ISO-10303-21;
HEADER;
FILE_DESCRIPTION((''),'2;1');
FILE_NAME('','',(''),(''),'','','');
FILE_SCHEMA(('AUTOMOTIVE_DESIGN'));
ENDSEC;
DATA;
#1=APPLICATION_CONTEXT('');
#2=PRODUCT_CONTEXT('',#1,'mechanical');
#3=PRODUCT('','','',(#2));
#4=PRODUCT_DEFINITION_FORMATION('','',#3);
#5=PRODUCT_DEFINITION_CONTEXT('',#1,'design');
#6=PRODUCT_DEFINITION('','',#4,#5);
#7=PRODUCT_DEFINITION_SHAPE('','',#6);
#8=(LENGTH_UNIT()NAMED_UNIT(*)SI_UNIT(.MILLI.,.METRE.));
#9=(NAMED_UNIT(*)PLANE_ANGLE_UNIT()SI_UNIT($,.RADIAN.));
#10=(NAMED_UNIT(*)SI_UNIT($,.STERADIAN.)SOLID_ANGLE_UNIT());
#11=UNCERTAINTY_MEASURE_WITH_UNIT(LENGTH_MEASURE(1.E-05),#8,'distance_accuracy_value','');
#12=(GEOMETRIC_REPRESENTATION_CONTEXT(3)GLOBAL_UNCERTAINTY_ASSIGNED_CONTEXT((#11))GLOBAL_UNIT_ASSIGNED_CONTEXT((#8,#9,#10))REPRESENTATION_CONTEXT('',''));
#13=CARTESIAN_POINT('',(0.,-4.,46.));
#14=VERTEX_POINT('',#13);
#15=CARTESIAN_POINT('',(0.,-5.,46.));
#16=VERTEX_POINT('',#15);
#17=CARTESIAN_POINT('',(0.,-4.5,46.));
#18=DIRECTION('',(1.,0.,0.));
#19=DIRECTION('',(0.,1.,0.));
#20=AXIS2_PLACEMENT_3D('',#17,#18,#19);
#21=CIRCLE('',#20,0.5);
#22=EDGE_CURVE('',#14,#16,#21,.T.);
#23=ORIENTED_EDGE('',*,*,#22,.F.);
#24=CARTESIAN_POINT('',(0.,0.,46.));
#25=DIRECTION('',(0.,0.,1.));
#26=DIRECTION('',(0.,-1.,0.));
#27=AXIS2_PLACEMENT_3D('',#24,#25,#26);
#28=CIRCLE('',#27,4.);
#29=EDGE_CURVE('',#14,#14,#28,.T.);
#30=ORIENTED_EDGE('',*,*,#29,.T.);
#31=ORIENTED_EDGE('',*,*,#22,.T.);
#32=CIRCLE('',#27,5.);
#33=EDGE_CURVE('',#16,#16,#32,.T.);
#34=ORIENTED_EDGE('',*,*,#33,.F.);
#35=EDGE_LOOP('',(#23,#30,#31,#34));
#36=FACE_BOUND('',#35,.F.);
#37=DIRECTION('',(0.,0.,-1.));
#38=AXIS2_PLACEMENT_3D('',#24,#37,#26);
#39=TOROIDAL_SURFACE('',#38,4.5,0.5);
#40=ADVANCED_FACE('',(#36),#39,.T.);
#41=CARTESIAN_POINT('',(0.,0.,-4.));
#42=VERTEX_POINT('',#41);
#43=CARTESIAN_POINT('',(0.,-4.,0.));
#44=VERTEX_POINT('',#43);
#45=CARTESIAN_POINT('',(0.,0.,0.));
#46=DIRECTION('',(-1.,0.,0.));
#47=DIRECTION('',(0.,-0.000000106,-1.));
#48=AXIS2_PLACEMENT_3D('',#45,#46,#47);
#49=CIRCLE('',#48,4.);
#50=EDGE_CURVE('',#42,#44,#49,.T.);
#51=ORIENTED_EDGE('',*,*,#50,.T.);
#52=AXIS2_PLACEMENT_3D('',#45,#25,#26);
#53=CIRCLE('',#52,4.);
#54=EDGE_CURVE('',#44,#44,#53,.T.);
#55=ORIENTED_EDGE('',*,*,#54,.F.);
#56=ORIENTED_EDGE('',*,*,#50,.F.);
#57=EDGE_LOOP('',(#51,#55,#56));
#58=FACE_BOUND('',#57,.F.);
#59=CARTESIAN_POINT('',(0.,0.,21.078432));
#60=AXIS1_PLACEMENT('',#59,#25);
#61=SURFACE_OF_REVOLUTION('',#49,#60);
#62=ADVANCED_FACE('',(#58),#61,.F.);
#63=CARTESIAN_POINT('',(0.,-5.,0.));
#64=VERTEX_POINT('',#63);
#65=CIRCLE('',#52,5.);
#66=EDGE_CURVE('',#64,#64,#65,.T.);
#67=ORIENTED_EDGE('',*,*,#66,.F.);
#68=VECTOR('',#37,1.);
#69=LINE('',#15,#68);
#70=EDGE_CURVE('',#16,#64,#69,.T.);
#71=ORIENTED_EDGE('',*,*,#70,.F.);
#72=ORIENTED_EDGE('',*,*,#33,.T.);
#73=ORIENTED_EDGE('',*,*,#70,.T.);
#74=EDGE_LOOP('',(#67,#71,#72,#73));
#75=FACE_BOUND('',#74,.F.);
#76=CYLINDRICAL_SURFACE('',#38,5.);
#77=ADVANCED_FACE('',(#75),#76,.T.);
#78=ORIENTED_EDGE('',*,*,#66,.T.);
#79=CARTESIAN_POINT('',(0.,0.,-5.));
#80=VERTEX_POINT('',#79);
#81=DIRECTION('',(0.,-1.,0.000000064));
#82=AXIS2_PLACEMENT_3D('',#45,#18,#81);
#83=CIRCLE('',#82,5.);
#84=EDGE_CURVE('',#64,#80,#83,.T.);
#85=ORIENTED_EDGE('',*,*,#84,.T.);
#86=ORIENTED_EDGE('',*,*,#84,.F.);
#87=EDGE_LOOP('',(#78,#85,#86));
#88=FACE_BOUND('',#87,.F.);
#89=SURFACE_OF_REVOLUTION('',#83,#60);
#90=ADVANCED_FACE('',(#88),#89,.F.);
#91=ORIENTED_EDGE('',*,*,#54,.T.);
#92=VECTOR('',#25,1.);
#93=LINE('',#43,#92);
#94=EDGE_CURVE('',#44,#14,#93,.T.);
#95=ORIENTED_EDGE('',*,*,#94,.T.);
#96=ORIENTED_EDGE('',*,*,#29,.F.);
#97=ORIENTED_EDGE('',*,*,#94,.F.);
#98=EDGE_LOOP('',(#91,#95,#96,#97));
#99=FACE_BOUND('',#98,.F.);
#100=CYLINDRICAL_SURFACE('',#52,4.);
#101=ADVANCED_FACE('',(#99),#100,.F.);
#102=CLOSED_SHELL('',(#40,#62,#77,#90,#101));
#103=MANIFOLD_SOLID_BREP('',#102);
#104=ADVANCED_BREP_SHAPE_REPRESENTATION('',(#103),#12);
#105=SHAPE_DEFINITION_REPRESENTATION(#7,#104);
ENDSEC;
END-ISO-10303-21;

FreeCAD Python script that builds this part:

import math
import FreeCAD as App
import Part
import Sketcher
from FreeCAD import Vector

doc = App.newDocument("Part")
body = doc.addObject("PartDesign::Body", "Body")

sketch1 = doc.addObject("Sketcher::SketchObject", "Sketch")
body.addObject(sketch1)
sketch1.AttachmentSupport = (doc.YZ_Plane, [""])
sketch1.MapMode = "FlatFace"
sketch1.addGeometry([
    Part.LineSegment(Vector(-4, 0, 0), Vector(-4, 46, 0)),
    Part.ArcOfCircle(Part.Circle(Vector(-4.5, 46, 0), Vector(0, 0, 1), 0.5), math.radians(0), math.radians(180)),
    Part.LineSegment(Vector(-5, 46, 0), Vector(-5, 0, 0)),
    Part.ArcOfCircle(Part.Circle(Vector(0, 0, 0), Vector(0, 0, 1), 5), math.radians(180), math.radians(270)),
    Part.LineSegment(Vector(0, -5, 0), Vector(0, -4, 0)),
    Part.ArcOfCircle(Part.Circle(Vector(0, 0, 0), Vector(0, 0, 1), 4), math.radians(-180), math.radians(-90)),
], False)
sketch1.addConstraint([
    Sketcher.Constraint("Tangent", 0, 2, 1, 1),
    Sketcher.Constraint("Tangent", 1, 2, 2, 1),
    Sketcher.Constraint("Tangent", 2, 2, 3, 1),
    Sketcher.Constraint("Coincident", 3, 2, 4, 1),
    Sketcher.Constraint("Coincident", 4, 2, 5, 2),
    Sketcher.Constraint("Tangent", 5, 1, 0, 1),
    Sketcher.Constraint("Vertical", 0),
    Sketcher.Constraint("Vertical", 2),
    Sketcher.Constraint("Vertical", 4),
    Sketcher.Constraint("Coincident", 3, 3, -1, 1),
    Sketcher.Constraint("Coincident", 5, 3, -1, 1),
    Sketcher.Constraint("PointOnObject", 3, 2, -2),
    Sketcher.Constraint("Radius", 3, 5.0),
    Sketcher.Constraint("Radius", 5, 4.0),
    Sketcher.Constraint("DistanceY", 0, 1, 0, 2, 46.0),
])
revolution = doc.addObject("PartDesign::Revolution", "Revolution")
body.addObject(revolution)
revolution.Profile = sketch1
revolution.ReferenceAxis = (sketch1, ["V_Axis"])
revolution.Angle = 360

doc.recompute()
